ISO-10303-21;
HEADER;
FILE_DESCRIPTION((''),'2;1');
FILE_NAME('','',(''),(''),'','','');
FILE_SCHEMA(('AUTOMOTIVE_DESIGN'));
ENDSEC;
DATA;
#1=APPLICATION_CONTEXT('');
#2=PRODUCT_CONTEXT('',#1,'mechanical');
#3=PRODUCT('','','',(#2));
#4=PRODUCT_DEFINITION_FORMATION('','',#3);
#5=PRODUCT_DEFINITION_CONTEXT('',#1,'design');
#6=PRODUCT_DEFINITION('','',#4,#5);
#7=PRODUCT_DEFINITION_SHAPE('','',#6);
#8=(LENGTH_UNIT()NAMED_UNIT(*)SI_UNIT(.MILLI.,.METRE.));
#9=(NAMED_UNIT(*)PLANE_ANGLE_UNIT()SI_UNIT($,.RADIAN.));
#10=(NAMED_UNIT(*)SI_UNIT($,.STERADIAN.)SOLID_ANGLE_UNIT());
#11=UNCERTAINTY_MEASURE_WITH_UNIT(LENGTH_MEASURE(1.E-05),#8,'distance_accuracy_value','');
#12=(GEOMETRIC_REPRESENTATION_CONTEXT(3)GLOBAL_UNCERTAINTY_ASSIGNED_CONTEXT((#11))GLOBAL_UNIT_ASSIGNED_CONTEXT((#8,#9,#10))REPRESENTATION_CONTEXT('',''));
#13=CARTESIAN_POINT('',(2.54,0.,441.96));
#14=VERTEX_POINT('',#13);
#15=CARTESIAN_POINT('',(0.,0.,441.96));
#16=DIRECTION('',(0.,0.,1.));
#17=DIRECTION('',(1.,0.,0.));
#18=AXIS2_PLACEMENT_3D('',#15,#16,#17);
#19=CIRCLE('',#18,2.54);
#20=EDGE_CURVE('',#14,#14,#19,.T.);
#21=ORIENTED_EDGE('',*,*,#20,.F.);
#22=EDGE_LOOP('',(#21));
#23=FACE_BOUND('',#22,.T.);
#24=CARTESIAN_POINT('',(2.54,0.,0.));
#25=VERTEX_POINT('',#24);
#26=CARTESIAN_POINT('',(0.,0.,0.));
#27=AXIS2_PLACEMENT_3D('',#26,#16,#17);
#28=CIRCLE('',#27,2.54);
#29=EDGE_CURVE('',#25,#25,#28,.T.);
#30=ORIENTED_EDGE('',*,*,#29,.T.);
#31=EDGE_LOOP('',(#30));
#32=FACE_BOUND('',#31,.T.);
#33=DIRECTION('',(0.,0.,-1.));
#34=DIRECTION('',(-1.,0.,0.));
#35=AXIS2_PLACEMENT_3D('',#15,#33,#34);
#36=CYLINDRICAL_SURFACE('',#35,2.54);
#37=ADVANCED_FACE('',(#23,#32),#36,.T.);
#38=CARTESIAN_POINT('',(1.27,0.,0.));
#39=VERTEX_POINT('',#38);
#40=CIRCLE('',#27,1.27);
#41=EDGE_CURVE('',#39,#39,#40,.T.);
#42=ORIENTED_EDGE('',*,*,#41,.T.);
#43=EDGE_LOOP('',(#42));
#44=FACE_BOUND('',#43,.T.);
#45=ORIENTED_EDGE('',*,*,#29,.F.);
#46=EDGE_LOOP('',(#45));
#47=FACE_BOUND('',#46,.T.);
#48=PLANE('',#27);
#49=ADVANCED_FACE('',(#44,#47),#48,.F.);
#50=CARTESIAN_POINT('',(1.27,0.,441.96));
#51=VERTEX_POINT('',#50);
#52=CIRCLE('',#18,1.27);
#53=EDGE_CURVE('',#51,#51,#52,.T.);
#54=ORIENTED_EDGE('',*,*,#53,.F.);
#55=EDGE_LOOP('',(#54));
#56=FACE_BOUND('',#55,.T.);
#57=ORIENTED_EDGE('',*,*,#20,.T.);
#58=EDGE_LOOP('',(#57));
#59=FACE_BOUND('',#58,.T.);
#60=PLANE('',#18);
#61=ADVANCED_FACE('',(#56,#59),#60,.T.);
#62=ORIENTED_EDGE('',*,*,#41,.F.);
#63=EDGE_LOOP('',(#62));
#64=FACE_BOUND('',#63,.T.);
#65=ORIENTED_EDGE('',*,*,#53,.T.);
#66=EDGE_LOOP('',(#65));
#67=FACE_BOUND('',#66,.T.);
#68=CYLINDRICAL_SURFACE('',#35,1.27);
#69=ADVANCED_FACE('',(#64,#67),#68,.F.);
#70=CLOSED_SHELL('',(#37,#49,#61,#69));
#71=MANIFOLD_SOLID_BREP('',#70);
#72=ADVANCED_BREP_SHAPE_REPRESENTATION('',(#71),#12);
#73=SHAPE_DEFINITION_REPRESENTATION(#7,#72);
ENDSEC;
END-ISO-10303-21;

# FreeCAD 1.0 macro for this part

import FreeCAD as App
import Part
import Sketcher
from FreeCAD import Vector
Q = App.Units.Quantity

doc = App.newDocument("Part")
params = doc.addObject("Spreadsheet::Sheet", "Params")
for row, (alias, value) in enumerate([
    ("sketch1_diameter", "0.2 in"),
    ("sketch1_diameter2", "0.1 in"),
    ("pad1_length", "17.4 in"),
], start=1):
    params.set(f"A{row}", alias)
    params.set(f"B{row}", "=" + value)
    params.setAlias(f"B{row}", alias)

body = doc.addObject("PartDesign::Body", "Body")

sketch1 = doc.addObject("Sketcher::SketchObject", "Sketch")
body.addObject(sketch1)
sketch1.AttachmentSupport = (doc.XY_Plane, [""])
sketch1.MapMode = "FlatFace"
sketch1.addGeometry([
    Part.Circle(Vector(0, 0, 0), Vector(0, 0, 1), 2.5),
    Part.Circle(Vector(0, 0, 0), Vector(0, 0, 1), 1.3),
], False)
sketch1.addConstraint([
    Sketcher.Constraint("Coincident", 0, 3, -1, 1),
    Sketcher.Constraint("Coincident", 1, 3, -1, 1),
    Sketcher.Constraint("Diameter", 0, Q("0.2 in")),
    Sketcher.Constraint("Diameter", 1, Q("0.1 in")),
])
sketch1.setExpression("Constraints[2]", "Params.sketch1_diameter")
sketch1.setExpression("Constraints[3]", "Params.sketch1_diameter2")
pad1 = doc.addObject("PartDesign::Pad", "Pad")
body.addObject(pad1)
pad1.Profile = sketch1
pad1.setExpression("Length", "Params.pad1_length")

doc.recompute()
